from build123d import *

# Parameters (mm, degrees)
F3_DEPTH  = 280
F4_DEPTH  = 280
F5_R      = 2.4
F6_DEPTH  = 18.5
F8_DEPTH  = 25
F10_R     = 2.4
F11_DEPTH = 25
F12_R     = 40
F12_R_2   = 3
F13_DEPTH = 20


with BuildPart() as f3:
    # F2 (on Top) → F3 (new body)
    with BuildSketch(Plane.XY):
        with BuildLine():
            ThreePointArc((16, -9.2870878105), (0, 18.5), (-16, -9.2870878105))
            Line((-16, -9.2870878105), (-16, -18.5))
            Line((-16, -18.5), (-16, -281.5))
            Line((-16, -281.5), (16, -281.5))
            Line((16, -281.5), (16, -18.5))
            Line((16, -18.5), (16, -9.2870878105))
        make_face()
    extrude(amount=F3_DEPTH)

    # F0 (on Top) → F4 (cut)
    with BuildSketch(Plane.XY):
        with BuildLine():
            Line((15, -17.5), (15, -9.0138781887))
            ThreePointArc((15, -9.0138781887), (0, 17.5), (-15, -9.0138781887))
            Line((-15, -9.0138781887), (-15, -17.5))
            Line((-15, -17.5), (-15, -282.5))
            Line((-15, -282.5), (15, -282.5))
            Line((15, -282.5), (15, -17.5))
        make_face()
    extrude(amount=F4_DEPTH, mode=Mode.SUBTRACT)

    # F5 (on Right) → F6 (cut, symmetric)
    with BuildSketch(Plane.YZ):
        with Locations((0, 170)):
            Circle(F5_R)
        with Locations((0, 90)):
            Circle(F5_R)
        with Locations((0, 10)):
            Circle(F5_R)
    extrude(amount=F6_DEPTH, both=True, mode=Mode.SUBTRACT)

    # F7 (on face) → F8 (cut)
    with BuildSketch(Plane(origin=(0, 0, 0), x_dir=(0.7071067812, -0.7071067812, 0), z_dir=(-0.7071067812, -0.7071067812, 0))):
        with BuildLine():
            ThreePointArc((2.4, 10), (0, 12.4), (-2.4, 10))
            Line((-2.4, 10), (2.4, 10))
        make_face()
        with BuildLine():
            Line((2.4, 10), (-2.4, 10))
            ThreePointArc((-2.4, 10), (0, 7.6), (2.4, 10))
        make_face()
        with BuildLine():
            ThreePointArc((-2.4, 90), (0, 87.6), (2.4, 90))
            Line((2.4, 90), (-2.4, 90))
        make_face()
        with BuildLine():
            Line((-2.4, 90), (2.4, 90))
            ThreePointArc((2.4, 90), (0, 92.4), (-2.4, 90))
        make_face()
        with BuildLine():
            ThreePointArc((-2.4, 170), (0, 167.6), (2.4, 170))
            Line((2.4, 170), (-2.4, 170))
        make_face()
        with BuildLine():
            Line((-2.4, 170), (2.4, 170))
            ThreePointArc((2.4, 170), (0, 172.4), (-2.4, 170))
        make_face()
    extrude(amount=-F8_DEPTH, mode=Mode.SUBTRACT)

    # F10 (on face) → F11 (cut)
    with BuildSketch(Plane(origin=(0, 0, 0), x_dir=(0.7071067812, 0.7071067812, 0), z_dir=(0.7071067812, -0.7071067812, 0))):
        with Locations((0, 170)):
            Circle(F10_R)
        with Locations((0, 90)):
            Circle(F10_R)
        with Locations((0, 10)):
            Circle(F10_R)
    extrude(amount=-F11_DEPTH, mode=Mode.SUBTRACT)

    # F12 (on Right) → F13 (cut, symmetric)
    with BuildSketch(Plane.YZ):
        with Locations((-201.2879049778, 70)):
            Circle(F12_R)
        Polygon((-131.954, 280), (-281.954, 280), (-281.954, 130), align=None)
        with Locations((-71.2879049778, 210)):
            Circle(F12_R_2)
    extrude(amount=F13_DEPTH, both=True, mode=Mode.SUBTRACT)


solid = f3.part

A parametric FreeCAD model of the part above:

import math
import FreeCAD as App
import Part
import Sketcher

V = App.Vector


def add_polygon(sketch, points):
    """Adds a closed chain of lines whose ends are joined by coincident constraints."""
    first, n = sketch.GeometryCount, len(points)
    for a, b in zip(points, points[1:] + points[:1]):
        sketch.addGeometry(Part.LineSegment(App.Vector(*a, 0), App.Vector(*b, 0)), False)
    for i in range(n):
        sketch.addConstraint(Sketcher.Constraint("Coincident", first + i, 2, first + (i + 1) % n, 1))

doc = App.newDocument("Part")
params = doc.addObject("Spreadsheet::Sheet", "Params")
for row, (alias, value) in enumerate([
    ("sketch1_radius", "18.5 mm"),
    ("sketch1_width", "32 mm"),
    ("pad1_length", "280 mm"),
    ("sketch2_radius", "17.5 mm"),
    ("sketch2_width", "30 mm"),
    ("pocket1_length", "280 mm"),
    ("sketch3_diameter", "4.8 mm"),
    ("pocket2_length", "37 mm"),
    ("sketch4_diameter", "4.8 mm"),
    ("pocket3_length", "25 mm"),
    ("sketch5_diameter", "4.8 mm"),
    ("pocket4_length", "25 mm"),
    ("sketch6_diameter", "80 mm"),
    ("sketch6_diameter2", "6 mm"),
    ("sketch6_width", "150 mm"),
    ("pocket5_length", "40 mm"),
], start=1):
    params.set(f"A{row}", alias)
    params.set(f"B{row}", "=" + value)
    params.setAlias(f"B{row}", alias)

body = doc.addObject("PartDesign::Body", "Body")

sketch1 = body.newObject("Sketcher::SketchObject", "Sketch")
sketch1.AttachmentSupport = (doc.getObject("XY_Plane"), [""])
sketch1.MapMode = "FlatFace"
sketch1.addGeometry(Part.ArcOfCircle(Part.Circle(V(0, 0, 0), V(0, 0, 1), 18.5), math.radians(-30.132722), math.radians(210.132722)), False)
sketch1.addGeometry(Part.LineSegment(V(-16, -9.287088, 0), V(-16, -281.5, 0)), False)
sketch1.addGeometry(Part.LineSegment(V(-16, -281.5, 0), V(16, -281.5, 0)), False)
sketch1.addGeometry(Part.LineSegment(V(16, -281.5, 0), V(16, -9.287088, 0)), False)
sketch1.addConstraint(Sketcher.Constraint("Coincident", 0, 2, 1, 1))
sketch1.addConstraint(Sketcher.Constraint("Coincident", 1, 2, 2, 1))
sketch1.addConstraint(Sketcher.Constraint("Coincident", 2, 2, 3, 1))
sketch1.addConstraint(Sketcher.Constraint("Coincident", 3, 2, 0, 1))
sketch1.addConstraint(Sketcher.Constraint("Vertical", 1))
sketch1.addConstraint(Sketcher.Constraint("Horizontal", 2))
sketch1.addConstraint(Sketcher.Constraint("Vertical", 3))
sketch1.addConstraint(Sketcher.Constraint("Coincident", 0, 3, -1, 1))
sketch1.addConstraint(Sketcher.Constraint("Horizontal", 0, 2, 3, 2))
sketch1.addConstraint(Sketcher.Constraint("Radius", 0, 18.5))
sketch1.addConstraint(Sketcher.Constraint("DistanceX", 2, 1, 2, 2, 32.0))
sketch1.addConstraint(Sketcher.Constraint("DistanceY", 1, 2, -1, 1, 281.5))
sketch1.setExpression("Constraints[9]", "Params.sketch1_radius")
sketch1.setExpression("Constraints[10]", "Params.sketch1_width")
pad1 = body.newObject("PartDesign::Pad", "Pad")
pad1.Profile = sketch1
pad1.setExpression("Length", "Params.pad1_length")

sketch2 = body.newObject("Sketcher::SketchObject", "Sketch001")
sketch2.AttachmentSupport = (doc.getObject("XY_Plane"), [""])
sketch2.MapMode = "FlatFace"
sketch2.addGeometry(Part.ArcOfCircle(Part.Circle(V(0, 0, 0), V(0, 0, 1), 17.5), math.radians(-31.002719), math.radians(211.002719)), False)
sketch2.addGeometry(Part.LineSegment(V(-15, -9.013878, 0), V(-15, -282.5, 0)), False)
sketch2.addGeometry(Part.LineSegment(V(-15, -282.5, 0), V(15, -282.5, 0)), False)
sketch2.addGeometry(Part.LineSegment(V(15, -282.5, 0), V(15, -9.013878, 0)), False)
sketch2.addConstraint(Sketcher.Constraint("Coincident", 0, 2, 1, 1))
sketch2.addConstraint(Sketcher.Constraint("Coincident", 1, 2, 2, 1))
sketch2.addConstraint(Sketcher.Constraint("Coincident", 2, 2, 3, 1))
sketch2.addConstraint(Sketcher.Constraint("Coincident", 3, 2, 0, 1))
sketch2.addConstraint(Sketcher.Constraint("Vertical", 1))
sketch2.addConstraint(Sketcher.Constraint("Horizontal", 2))
sketch2.addConstraint(Sketcher.Constraint("Vertical", 3))
sketch2.addConstraint(Sketcher.Constraint("Coincident", 0, 3, -1, 1))
sketch2.addConstraint(Sketcher.Constraint("Horizontal", 0, 2, 3, 2))
sketch2.addConstraint(Sketcher.Constraint("Radius", 0, 17.5))
sketch2.addConstraint(Sketcher.Constraint("DistanceX", 2, 1, 2, 2, 30.0))
sketch2.addConstraint(Sketcher.Constraint("DistanceY", 1, 2, -1, 1, 282.5))
sketch2.setExpression("Constraints[9]", "Params.sketch2_radius")
sketch2.setExpression("Constraints[10]", "Params.sketch2_width")
pocket1 = body.newObject("PartDesign::Pocket", "Pocket")
pocket1.Profile = sketch2
pocket1.setExpression("Length", "Params.pocket1_length")
pocket1.Reversed = True

sketch3 = body.newObject("Sketcher::SketchObject", "Sketch002")
sketch3.AttachmentSupport = (doc.getObject("YZ_Plane"), [""])
sketch3.MapMode = "FlatFace"
sketch3.addGeometry(Part.Circle(V(0, 170, 0), V(0, 0, 1), 2.4), False)
sketch3.addGeometry(Part.Circle(V(0, 90, 0), V(0, 0, 1), 2.4), False)
sketch3.addGeometry(Part.Circle(V(0, 10, 0), V(0, 0, 1), 2.4), False)
sketch3.addConstraint(Sketcher.Constraint("Equal", 0, 1))
sketch3.addConstraint(Sketcher.Constraint("Equal", 1, 2))
sketch3.addConstraint(Sketcher.Constraint("PointOnObject", 0, 3, -2))
sketch3.addConstraint(Sketcher.Constraint("PointOnObject", 1, 3, -2))
sketch3.addConstraint(Sketcher.Constraint("PointOnObject", 2, 3, -2))
sketch3.addConstraint(Sketcher.Constraint("Diameter", 0, 4.8))
sketch3.addConstraint(Sketcher.Constraint("DistanceY", -1, 1, 0, 3, 170.0))
sketch3.addConstraint(Sketcher.Constraint("DistanceY", -1, 1, 1, 3, 90.0))
sketch3.addConstraint(Sketcher.Constraint("DistanceY", -1, 1, 2, 3, 10.0))
sketch3.setExpression("Constraints[5]", "Params.sketch3_diameter")
pocket2 = body.newObject("PartDesign::Pocket", "Pocket001")
pocket2.Profile = sketch3
pocket2.setExpression("Length", "Params.pocket2_length")
pocket2.Midplane = True

sketch4 = body.newObject("Sketcher::SketchObject", "Sketch003")
sketch4.Placement = App.Placement(V(0, 0, 0), App.Rotation(V(0.707106781, -0.707106781, 0), V(0, 0, 0.999999999), V(-0.707106781, -0.707106781, 0), "ZXY"))
sketch4.addGeometry(Part.Circle(V(0, 10, 0), V(0, 0, 1), 2.4), False)
sketch4.addGeometry(Part.Circle(V(0, 90, 0), V(0, 0, 1), 2.4), False)
sketch4.addGeometry(Part.Circle(V(0, 170, 0), V(0, 0, 1), 2.4), False)
sketch4.addConstraint(Sketcher.Constraint("Equal", 0, 1))
sketch4.addConstraint(Sketcher.Constraint("Equal", 1, 2))
sketch4.addConstraint(Sketcher.Constraint("PointOnObject", 0, 3, -2))
sketch4.addConstraint(Sketcher.Constraint("PointOnObject", 1, 3, -2))
sketch4.addConstraint(Sketcher.Constraint("PointOnObject", 2, 3, -2))
sketch4.addConstraint(Sketcher.Constraint("Diameter", 0, 4.8))
sketch4.addConstraint(Sketcher.Constraint("DistanceY", -1, 1, 0, 3, 10.0))
sketch4.addConstraint(Sketcher.Constraint("DistanceY", -1, 1, 1, 3, 90.0))
sketch4.addConstraint(Sketcher.Constraint("DistanceY", -1, 1, 2, 3, 170.0))
sketch4.setExpression("Constraints[5]", "Params.sketch4_diameter")
pocket3 = body.newObject("PartDesign::Pocket", "Pocket002")
pocket3.Profile = sketch4
pocket3.setExpression("Length", "Params.pocket3_length")

sketch5 = body.newObject("Sketcher::SketchObject", "Sketch004")
sketch5.Placement = App.Placement(V(0, 0, 0), App.Rotation(V(0.707106781, 0.707106781, 0), V(0, 0, 0.999999999), V(0.707106781, -0.707106781, 0), "ZXY"))
sketch5.addGeometry(Part.Circle(V(0, 170, 0), V(0, 0, 1), 2.4), False)
sketch5.addGeometry(Part.Circle(V(0, 90, 0), V(0, 0, 1), 2.4), False)
sketch5.addGeometry(Part.Circle(V(0, 10, 0), V(0, 0, 1), 2.4), False)
sketch5.addConstraint(Sketcher.Constraint("Equal", 0, 1))
sketch5.addConstraint(Sketcher.Constraint("Equal", 1, 2))
sketch5.addConstraint(Sketcher.Constraint("PointOnObject", 0, 3, -2))
sketch5.addConstraint(Sketcher.Constraint("PointOnObject", 1, 3, -2))
sketch5.addConstraint(Sketcher.Constraint("PointOnObject", 2, 3, -2))
sketch5.addConstraint(Sketcher.Constraint("Diameter", 0, 4.8))
sketch5.addConstraint(Sketcher.Constraint("DistanceY", -1, 1, 0, 3, 170.0))
sketch5.addConstraint(Sketcher.Constraint("DistanceY", -1, 1, 1, 3, 90.0))
sketch5.addConstraint(Sketcher.Constraint("DistanceY", -1, 1, 2, 3, 10.0))
sketch5.setExpression("Constraints[5]", "Params.sketch5_diameter")
pocket4 = body.newObject("PartDesign::Pocket", "Pocket003")
pocket4.Profile = sketch5
pocket4.setExpression("Length", "Params.pocket4_length")

sketch6 = body.newObject("Sketcher::SketchObject", "Sketch005")
sketch6.AttachmentSupport = (doc.getObject("YZ_Plane"), [""])
sketch6.MapMode = "FlatFace"
sketch6.addGeometry(Part.Circle(V(-201.287905, 70, 0), V(0, 0, 1), 40), False)
add_polygon(sketch6, [(-131.954, 280), (-281.954, 280), (-281.954, 130)])
sketch6.addGeometry(Part.Circle(V(-71.287905, 210, 0), V(0, 0, 1), 3), False)
sketch6.addConstraint(Sketcher.Constraint("Horizontal", 1))
sketch6.addConstraint(Sketcher.Constraint("Vertical", 2))
sketch6.addConstraint(Sketcher.Constraint("Equal", 1, 2))
sketch6.addConstraint(Sketcher.Constraint("Diameter", 0, 80.0))
sketch6.addConstraint(Sketcher.Constraint("Diameter", 4, 6.0))
sketch6.addConstraint(Sketcher.Constraint("DistanceX", 1, 2, 1, 1, 150.0))
sketch6.addConstraint(Sketcher.Constraint("DistanceY", -1, 1, 0, 3, 70.0))
sketch6.addConstraint(Sketcher.Constraint("DistanceY", -1, 1, 4, 3, 210.0))
sketch6.addConstraint(Sketcher.Constraint("DistanceY", -1, 1, 1, 2, 280.0))
sketch6.addConstraint(Sketcher.Constraint("DistanceX", 0, 3, 4, 3, 130.0))
sketch6.addConstraint(Sketcher.Constraint("DistanceX", 1, 2, -1, 1, 281.954))
sketch6.addConstraint(Sketcher.Constraint("DistanceX", 0, 3, -1, 1, 201.287905))
sketch6.setExpression("Constraints[6]", "Params.sketch6_diameter")
sketch6.setExpression("Constraints[7]", "Params.sketch6_diameter2")
sketch6.setExpression("Constraints[8]", "Params.sketch6_width")
pocket5 = body.newObject("PartDesign::Pocket", "Pocket004")
pocket5.Profile = sketch6
pocket5.setExpression("Length", "Params.pocket5_length")
pocket5.Midplane = True

doc.recompute()
